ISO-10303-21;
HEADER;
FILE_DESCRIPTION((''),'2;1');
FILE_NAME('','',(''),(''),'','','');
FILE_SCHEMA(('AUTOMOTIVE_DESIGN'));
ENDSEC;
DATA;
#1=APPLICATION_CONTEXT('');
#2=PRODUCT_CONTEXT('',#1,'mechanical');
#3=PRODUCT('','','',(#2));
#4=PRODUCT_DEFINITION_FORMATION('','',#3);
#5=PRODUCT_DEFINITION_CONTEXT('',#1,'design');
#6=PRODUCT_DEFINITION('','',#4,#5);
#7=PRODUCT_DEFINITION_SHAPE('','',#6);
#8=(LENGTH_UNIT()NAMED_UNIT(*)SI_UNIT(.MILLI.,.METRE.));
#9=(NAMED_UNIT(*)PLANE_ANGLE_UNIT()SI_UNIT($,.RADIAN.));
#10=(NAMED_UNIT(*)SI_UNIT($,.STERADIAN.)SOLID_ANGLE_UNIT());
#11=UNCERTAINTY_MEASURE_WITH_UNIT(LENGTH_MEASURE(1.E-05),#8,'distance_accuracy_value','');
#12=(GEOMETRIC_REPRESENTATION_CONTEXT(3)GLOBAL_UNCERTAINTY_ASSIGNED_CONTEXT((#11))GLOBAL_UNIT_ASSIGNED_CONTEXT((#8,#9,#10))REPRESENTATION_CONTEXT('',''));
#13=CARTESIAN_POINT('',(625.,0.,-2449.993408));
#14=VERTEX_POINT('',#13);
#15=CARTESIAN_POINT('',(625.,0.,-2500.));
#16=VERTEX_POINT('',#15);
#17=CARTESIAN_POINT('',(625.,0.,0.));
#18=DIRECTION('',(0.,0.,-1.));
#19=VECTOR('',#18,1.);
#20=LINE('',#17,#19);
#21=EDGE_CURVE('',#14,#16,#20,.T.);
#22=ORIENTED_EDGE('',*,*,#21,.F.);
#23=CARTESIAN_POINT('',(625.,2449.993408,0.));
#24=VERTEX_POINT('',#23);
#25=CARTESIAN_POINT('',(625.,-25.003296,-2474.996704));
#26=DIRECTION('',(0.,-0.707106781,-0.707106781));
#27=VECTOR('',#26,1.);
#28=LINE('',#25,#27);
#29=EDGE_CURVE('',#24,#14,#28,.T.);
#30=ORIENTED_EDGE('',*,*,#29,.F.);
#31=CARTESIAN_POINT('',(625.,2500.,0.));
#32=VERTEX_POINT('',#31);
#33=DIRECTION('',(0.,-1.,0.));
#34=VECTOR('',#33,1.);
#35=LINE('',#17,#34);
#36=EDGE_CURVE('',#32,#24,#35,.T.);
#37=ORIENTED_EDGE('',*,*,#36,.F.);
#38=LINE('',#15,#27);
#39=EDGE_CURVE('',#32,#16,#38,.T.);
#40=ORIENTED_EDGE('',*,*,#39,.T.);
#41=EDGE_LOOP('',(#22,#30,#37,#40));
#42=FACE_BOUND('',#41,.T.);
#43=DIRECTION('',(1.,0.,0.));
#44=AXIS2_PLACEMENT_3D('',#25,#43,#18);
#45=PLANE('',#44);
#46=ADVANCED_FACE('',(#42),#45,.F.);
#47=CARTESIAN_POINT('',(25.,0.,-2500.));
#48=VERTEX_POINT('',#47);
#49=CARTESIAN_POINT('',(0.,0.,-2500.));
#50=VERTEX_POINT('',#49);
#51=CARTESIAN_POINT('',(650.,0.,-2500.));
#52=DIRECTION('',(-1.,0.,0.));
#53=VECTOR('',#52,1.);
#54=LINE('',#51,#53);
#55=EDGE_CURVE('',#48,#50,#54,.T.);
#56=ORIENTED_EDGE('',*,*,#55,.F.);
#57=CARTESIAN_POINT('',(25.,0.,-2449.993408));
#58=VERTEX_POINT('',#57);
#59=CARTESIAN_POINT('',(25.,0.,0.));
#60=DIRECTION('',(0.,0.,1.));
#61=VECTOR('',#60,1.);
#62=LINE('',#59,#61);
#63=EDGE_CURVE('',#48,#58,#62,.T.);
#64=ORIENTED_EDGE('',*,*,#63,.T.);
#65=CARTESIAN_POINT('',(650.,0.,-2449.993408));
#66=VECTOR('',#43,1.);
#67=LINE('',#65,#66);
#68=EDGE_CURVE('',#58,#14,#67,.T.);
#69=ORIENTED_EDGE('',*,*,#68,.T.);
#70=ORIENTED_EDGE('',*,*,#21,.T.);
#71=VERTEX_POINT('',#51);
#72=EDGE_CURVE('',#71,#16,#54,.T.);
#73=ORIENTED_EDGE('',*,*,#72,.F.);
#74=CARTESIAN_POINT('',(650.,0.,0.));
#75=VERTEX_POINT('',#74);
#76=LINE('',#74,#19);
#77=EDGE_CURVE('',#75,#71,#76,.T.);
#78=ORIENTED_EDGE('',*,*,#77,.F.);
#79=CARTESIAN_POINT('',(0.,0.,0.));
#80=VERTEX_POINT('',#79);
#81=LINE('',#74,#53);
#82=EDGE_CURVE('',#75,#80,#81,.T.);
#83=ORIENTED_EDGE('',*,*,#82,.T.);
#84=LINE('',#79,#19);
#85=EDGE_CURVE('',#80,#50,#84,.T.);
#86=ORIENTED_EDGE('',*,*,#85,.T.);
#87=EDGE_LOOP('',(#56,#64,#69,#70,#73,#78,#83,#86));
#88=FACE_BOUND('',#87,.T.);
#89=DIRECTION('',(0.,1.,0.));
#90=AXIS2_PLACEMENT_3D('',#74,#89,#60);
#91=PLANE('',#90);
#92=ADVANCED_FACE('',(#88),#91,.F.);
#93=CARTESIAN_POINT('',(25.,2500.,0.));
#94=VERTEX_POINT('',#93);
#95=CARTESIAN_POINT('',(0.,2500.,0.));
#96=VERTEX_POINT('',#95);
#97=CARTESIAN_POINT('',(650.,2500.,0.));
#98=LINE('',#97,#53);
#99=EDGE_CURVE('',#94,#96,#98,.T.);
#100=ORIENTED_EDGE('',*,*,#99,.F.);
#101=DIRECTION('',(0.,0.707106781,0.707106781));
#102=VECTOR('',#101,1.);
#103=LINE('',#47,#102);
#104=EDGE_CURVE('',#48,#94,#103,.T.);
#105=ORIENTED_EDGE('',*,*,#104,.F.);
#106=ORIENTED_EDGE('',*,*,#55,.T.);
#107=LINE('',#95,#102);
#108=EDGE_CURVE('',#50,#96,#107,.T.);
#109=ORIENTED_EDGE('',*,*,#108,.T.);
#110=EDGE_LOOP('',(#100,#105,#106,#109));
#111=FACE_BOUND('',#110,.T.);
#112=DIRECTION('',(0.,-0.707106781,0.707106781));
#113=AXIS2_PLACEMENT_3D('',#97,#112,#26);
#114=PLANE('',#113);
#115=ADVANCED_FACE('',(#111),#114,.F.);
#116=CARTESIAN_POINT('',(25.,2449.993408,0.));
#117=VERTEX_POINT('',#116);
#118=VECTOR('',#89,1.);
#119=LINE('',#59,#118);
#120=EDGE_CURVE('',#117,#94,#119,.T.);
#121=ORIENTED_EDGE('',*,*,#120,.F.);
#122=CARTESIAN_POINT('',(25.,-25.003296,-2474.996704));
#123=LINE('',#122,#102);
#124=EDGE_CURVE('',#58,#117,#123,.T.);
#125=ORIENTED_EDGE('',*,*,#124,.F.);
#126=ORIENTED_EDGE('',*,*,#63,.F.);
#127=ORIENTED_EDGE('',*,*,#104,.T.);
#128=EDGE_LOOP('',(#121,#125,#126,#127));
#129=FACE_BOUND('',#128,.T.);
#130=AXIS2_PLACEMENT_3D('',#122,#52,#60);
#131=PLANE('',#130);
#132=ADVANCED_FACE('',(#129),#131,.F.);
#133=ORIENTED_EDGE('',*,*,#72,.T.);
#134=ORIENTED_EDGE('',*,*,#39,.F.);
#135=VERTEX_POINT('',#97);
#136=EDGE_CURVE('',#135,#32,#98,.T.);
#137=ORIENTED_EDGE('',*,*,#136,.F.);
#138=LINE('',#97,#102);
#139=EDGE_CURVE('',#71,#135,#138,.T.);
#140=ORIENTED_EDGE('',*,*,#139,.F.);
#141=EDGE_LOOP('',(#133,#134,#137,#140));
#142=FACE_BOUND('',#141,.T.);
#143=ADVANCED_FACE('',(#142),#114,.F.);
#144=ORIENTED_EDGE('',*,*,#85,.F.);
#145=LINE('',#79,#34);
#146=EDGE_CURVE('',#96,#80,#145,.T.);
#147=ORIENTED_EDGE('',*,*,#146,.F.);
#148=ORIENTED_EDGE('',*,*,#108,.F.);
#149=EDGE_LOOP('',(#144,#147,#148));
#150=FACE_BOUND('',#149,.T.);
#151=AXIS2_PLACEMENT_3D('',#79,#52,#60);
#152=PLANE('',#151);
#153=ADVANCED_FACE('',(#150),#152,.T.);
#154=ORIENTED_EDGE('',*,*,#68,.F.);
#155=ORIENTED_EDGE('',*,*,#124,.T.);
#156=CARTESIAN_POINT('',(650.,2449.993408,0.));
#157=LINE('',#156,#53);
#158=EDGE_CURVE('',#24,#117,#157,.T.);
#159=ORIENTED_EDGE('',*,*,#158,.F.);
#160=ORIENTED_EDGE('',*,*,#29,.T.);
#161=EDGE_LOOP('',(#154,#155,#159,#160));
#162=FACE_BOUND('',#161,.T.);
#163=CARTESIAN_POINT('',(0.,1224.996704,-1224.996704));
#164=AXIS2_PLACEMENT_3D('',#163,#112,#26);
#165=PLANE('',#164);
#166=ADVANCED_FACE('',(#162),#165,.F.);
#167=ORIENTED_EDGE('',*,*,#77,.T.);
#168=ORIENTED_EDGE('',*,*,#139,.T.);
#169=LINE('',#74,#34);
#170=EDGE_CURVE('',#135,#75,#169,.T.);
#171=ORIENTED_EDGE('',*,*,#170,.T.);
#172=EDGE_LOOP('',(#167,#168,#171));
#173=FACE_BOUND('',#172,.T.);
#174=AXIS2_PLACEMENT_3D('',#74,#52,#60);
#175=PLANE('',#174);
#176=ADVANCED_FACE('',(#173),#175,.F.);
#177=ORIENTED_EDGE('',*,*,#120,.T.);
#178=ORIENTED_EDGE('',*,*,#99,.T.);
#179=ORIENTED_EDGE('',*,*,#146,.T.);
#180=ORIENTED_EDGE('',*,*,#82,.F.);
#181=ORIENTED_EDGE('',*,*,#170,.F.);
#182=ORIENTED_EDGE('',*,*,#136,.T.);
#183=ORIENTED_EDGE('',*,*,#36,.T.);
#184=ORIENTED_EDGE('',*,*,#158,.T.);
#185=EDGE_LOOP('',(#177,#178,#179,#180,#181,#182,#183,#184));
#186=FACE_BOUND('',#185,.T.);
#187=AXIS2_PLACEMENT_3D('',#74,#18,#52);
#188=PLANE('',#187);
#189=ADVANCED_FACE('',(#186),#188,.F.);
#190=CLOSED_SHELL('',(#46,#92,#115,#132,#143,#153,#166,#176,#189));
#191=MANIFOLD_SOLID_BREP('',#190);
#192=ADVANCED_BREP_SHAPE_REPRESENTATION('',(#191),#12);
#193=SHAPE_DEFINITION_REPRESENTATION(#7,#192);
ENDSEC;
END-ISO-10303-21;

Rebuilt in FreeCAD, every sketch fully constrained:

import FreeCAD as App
import Part
import Sketcher

doc = App.newDocument("Part")
body = doc.addObject("PartDesign::Body", "Body")

# Sketch on YZ plane
sketch1 = body.newObject("Sketcher::SketchObject", "Sketch")
sketch1.AttachmentSupport = (doc.getObject("YZ_Plane"), [""])
sketch1.MapMode = "FlatFace"
sketch1.addGeometry([
    Part.LineSegment(App.Vector(0, 0, 0), App.Vector(0, -2500, 0)),
    Part.LineSegment(App.Vector(0, -2500, 0), App.Vector(2500, 0, 0)),
    Part.LineSegment(App.Vector(2500, 0, 0), App.Vector(0, 0, 0)),
], False)
sketch1.addConstraint([
    Sketcher.Constraint("Coincident", 0, 2, 1, 1),
    Sketcher.Constraint("Coincident", 1, 2, 2, 1),
    Sketcher.Constraint("Coincident", 2, 2, 0, 1),
    Sketcher.Constraint("Vertical", 0),
    Sketcher.Constraint("Horizontal", 2),
    Sketcher.Constraint("Coincident", 2, 2, -1, 1),
    Sketcher.Constraint("Equal", 2, 0),
    Sketcher.Constraint("DistanceX", 2, 2, 2, 1, 2500.0),
])
pad1 = body.newObject("PartDesign::Pad", "Pad")
pad1.Profile = sketch1
pad1.Length = 650

# Sketch on an angled plane
sketch2 = body.newObject("Sketcher::SketchObject", "Sketch001")
sketch2.Placement = App.Placement(App.Vector(0, 1250, -1250), App.Rotation(App.Vector(1, 0, 0), App.Vector(0, -0.707106781, -0.707106781), App.Vector(0, 0.707106781, -0.707106781), "ZXY"))
sketch2.addGeometry([
    Part.LineSegment(App.Vector(25, 1768, 0), App.Vector(25, -1768, 0)),
    Part.LineSegment(App.Vector(25, -1768, 0), App.Vector(625, -1768, 0)),
    Part.LineSegment(App.Vector(625, -1768, 0), App.Vector(625, 1768, 0)),
    Part.LineSegment(App.Vector(625, 1768, 0), App.Vector(25, 1768, 0)),
], False)
sketch2.addConstraint([
    Sketcher.Constraint("Coincident", 0, 2, 1, 1),
    Sketcher.Constraint("Coincident", 1, 2, 2, 1),
    Sketcher.Constraint("Coincident", 2, 2, 3, 1),
    Sketcher.Constraint("Coincident", 3, 2, 0, 1),
    Sketcher.Constraint("Vertical", 0),
    Sketcher.Constraint("Horizontal", 1),
    Sketcher.Constraint("Vertical", 2),
    Sketcher.Constraint("Horizontal", 3),
    Sketcher.Constraint("DistanceX", 1, 1, 1, 2, 600.0),
    Sketcher.Constraint("DistanceX", -1, 1, 0, 2, 25.0),
    Sketcher.Constraint("DistanceY", 0, 2, 0, 1, 3535.533904),
    Sketcher.Constraint("DistanceY", 0, 2, -1, 1, 1767.766952),
])
pocket1 = body.newObject("PartDesign::Pocket", "Pocket")
pocket1.Profile = sketch2
pocket1.Length = 35.36

doc.recompute()
